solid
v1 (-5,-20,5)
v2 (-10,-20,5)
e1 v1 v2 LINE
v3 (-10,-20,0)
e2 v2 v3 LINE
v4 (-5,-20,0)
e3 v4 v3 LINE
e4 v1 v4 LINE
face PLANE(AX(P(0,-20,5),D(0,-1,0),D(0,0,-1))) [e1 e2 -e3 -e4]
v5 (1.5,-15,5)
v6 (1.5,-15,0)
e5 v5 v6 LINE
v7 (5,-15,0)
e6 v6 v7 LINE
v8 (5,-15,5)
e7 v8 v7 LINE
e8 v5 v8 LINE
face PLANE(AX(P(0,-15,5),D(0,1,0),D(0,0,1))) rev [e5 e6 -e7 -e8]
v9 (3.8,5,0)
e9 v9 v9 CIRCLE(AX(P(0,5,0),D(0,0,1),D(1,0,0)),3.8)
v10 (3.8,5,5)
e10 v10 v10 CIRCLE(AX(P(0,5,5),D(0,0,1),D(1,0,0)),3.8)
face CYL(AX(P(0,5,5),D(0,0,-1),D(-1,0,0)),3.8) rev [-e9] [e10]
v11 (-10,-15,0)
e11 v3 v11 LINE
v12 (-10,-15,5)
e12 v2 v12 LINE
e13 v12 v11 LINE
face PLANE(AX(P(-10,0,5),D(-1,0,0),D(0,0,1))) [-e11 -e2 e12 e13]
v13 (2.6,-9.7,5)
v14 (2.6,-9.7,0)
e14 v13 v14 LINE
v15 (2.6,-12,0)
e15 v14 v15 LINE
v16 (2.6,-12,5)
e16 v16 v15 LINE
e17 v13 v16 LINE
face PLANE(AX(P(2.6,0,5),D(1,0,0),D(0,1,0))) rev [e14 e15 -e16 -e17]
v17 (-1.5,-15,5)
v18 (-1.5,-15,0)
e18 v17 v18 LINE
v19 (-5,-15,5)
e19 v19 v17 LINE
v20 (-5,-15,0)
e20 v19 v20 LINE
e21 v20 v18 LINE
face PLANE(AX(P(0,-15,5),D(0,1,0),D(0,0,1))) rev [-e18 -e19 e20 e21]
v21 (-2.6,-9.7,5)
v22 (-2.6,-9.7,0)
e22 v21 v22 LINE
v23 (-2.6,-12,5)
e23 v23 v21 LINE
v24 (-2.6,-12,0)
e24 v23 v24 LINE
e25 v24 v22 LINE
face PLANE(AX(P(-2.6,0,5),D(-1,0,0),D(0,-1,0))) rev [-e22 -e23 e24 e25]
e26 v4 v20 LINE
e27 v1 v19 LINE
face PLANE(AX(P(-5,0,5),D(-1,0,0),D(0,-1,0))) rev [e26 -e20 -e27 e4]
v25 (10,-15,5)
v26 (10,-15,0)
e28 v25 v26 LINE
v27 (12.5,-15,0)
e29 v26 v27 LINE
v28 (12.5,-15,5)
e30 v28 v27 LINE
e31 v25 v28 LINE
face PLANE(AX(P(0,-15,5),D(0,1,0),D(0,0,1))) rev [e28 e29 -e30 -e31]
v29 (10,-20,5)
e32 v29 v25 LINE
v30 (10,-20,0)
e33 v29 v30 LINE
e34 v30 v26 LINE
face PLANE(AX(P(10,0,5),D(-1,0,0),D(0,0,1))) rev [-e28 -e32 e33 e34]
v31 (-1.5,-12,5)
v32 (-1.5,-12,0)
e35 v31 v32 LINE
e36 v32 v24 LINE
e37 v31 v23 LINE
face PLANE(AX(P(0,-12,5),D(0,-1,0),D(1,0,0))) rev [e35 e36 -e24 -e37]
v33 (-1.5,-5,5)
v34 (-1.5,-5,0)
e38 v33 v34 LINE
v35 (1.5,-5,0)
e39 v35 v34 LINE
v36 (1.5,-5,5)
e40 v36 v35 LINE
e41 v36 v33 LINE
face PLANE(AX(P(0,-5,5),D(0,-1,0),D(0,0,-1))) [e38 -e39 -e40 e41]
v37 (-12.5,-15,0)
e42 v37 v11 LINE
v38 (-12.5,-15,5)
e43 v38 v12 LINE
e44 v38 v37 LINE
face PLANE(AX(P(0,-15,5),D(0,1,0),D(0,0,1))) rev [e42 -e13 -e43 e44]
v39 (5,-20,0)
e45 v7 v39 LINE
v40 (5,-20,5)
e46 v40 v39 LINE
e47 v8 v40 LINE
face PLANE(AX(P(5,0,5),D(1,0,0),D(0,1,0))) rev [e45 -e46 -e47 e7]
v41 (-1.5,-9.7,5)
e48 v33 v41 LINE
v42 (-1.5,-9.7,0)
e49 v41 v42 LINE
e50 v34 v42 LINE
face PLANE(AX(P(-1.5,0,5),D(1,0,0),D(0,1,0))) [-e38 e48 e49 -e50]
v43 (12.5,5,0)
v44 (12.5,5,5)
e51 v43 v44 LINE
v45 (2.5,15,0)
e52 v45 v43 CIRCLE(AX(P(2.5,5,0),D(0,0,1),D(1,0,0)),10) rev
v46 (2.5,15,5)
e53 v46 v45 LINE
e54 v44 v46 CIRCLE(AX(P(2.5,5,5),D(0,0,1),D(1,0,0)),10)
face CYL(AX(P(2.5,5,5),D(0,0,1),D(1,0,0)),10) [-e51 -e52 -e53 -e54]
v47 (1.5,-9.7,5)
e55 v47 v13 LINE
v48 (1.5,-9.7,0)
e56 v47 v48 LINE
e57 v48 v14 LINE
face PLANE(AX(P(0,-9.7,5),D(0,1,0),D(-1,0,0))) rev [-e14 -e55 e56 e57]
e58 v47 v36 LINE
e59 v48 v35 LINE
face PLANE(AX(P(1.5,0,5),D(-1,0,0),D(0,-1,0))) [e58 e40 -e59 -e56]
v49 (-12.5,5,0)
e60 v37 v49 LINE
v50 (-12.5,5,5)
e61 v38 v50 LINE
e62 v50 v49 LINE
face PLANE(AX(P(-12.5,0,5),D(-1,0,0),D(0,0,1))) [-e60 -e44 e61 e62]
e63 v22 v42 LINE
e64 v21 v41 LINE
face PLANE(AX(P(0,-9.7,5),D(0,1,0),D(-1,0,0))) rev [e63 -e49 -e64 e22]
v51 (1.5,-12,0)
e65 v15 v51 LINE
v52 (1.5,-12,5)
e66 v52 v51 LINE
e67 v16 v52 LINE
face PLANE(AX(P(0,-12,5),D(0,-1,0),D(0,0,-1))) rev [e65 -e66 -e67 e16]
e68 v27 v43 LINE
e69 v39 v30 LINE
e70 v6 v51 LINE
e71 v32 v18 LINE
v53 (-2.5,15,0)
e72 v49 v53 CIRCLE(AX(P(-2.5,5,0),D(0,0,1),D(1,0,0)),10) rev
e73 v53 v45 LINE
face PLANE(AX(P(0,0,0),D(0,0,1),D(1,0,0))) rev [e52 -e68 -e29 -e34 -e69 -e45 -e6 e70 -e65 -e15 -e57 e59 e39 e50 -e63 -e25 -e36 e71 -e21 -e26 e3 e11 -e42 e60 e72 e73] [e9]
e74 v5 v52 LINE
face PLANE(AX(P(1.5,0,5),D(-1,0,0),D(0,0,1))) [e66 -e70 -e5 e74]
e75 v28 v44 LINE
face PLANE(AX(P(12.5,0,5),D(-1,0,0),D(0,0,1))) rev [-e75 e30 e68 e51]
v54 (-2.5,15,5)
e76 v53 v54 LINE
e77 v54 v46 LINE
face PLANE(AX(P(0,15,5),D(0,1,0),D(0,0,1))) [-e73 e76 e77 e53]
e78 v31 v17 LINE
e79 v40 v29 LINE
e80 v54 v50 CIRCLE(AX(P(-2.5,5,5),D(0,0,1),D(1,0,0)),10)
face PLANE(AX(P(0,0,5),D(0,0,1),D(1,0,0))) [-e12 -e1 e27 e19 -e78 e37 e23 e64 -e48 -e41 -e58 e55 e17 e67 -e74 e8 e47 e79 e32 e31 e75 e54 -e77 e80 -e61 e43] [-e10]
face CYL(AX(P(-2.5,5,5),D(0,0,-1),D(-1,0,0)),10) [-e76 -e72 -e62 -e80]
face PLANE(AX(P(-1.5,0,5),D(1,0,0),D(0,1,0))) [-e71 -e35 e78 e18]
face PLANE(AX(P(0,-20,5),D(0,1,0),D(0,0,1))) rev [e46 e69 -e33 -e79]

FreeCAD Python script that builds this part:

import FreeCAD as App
import Part
import Sketcher


def edges_at(feature, points):
    """Names of the edges that pass closest to the given points."""
    edges = feature.Shape.Edges
    near = lambda p: min(range(len(edges)), key=lambda i: edges[i].distToShape(Part.Vertex(*p))[0])
    return sorted({f"Edge{near(p) + 1}" for p in points})

doc = App.newDocument("Part")
body = doc.addObject("PartDesign::Body", "Body")

# Sketch on XY plane
sketch1 = body.newObject("Sketcher::SketchObject", "Sketch")
sketch1.AttachmentSupport = (doc.getObject("XY_Plane"), [""])
sketch1.MapMode = "FlatFace"
sketch1.addGeometry([
    Part.LineSegment(App.Vector(-12.5, 15, 0), App.Vector(-12.5, -15, 0)),  # 0
    Part.LineSegment(App.Vector(-12.5, -15, 0), App.Vector(-10, -15, 0)),  # 1
    Part.LineSegment(App.Vector(-10, -15, 0), App.Vector(-10, -20, 0)),  # 2
    Part.LineSegment(App.Vector(-10, -20, 0), App.Vector(-5, -20, 0)),  # 3
    Part.LineSegment(App.Vector(-5, -20, 0), App.Vector(-5, -15, 0)),  # 4
    Part.LineSegment(App.Vector(-5, -15, 0), App.Vector(-1.5, -15, 0)),  # 5
    Part.LineSegment(App.Vector(-1.5, -15, 0), App.Vector(-1.5, -12, 0)),  # 6
    Part.LineSegment(App.Vector(-1.5, -12, 0), App.Vector(-2.6, -12, 0)),  # 7
    Part.LineSegment(App.Vector(-2.6, -12, 0), App.Vector(-2.6, -9.7, 0)),  # 8
    Part.LineSegment(App.Vector(-2.6, -9.7, 0), App.Vector(-1.5, -9.7, 0)),  # 9
    Part.LineSegment(App.Vector(-1.5, -9.7, 0), App.Vector(-1.5, -5, 0)),  # 10
    Part.LineSegment(App.Vector(-1.5, -5, 0), App.Vector(1.5, -5, 0)),  # 11
    Part.LineSegment(App.Vector(1.5, -5, 0), App.Vector(1.5, -9.7, 0)),  # 12
    Part.LineSegment(App.Vector(1.5, -9.7, 0), App.Vector(2.6, -9.7, 0)),  # 13
    Part.LineSegment(App.Vector(2.6, -9.7, 0), App.Vector(2.6, -12, 0)),  # 14
    Part.LineSegment(App.Vector(2.6, -12, 0), App.Vector(1.5, -12, 0)),  # 15
    Part.LineSegment(App.Vector(1.5, -12, 0), App.Vector(1.5, -15, 0)),  # 16
    Part.LineSegment(App.Vector(1.5, -15, 0), App.Vector(5, -15, 0)),  # 17
    Part.LineSegment(App.Vector(5, -15, 0), App.Vector(5, -20, 0)),  # 18
    Part.LineSegment(App.Vector(5, -20, 0), App.Vector(10, -20, 0)),  # 19
    Part.LineSegment(App.Vector(10, -20, 0), App.Vector(10, -15, 0)),  # 20
    Part.LineSegment(App.Vector(10, -15, 0), App.Vector(12.5, -15, 0)),  # 21
    Part.LineSegment(App.Vector(12.5, -15, 0), App.Vector(12.5, 15, 0)),  # 22
    Part.LineSegment(App.Vector(12.5, 15, 0), App.Vector(-12.5, 15, 0)),  # 23
    Part.Circle(App.Vector(0, 5, 0), App.Vector(0, 0, 1), 3.8),  # 24
], False)
sketch1.addConstraint([
    Sketcher.Constraint("Coincident", 0, 2, 1, 1),
    Sketcher.Constraint("Coincident", 1, 2, 2, 1),
    Sketcher.Constraint("Coincident", 2, 2, 3, 1),
    Sketcher.Constraint("Coincident", 3, 2, 4, 1),
    Sketcher.Constraint("Coincident", 4, 2, 5, 1),
    Sketcher.Constraint("Coincident", 5, 2, 6, 1),
    Sketcher.Constraint("Coincident", 6, 2, 7, 1),
    Sketcher.Constraint("Coincident", 7, 2, 8, 1),
    Sketcher.Constraint("Coincident", 8, 2, 9, 1),
    Sketcher.Constraint("Coincident", 9, 2, 10, 1),
    Sketcher.Constraint("Coincident", 10, 2, 11, 1),
    Sketcher.Constraint("Coincident", 11, 2, 12, 1),
    Sketcher.Constraint("Coincident", 12, 2, 13, 1),
    Sketcher.Constraint("Coincident", 13, 2, 14, 1),
    Sketcher.Constraint("Coincident", 14, 2, 15, 1),
    Sketcher.Constraint("Coincident", 15, 2, 16, 1),
    Sketcher.Constraint("Coincident", 16, 2, 17, 1),
    Sketcher.Constraint("Coincident", 17, 2, 18, 1),
    Sketcher.Constraint("Coincident", 18, 2, 19, 1),
    Sketcher.Constraint("Coincident", 19, 2, 20, 1),
    Sketcher.Constraint("Coincident", 20, 2, 21, 1),
    Sketcher.Constraint("Coincident", 21, 2, 22, 1),
    Sketcher.Constraint("Coincident", 22, 2, 23, 1),
    Sketcher.Constraint("Coincident", 23, 2, 0, 1),
    Sketcher.Constraint("Vertical", 0),
    Sketcher.Constraint("Horizontal", 1),
    Sketcher.Constraint("Vertical", 2),
    Sketcher.Constraint("Horizontal", 3),
    Sketcher.Constraint("Vertical", 4),
    Sketcher.Constraint("Horizontal", 5),
    Sketcher.Constraint("Vertical", 6),
    Sketcher.Constraint("Horizontal", 7),
    Sketcher.Constraint("Vertical", 8),
    Sketcher.Constraint("Horizontal", 9),
    Sketcher.Constraint("Vertical", 10),
    Sketcher.Constraint("Horizontal", 11),
    Sketcher.Constraint("Vertical", 12),
    Sketcher.Constraint("Horizontal", 13),
    Sketcher.Constraint("Vertical", 14),
    Sketcher.Constraint("Horizontal", 15),
    Sketcher.Constraint("Vertical", 16),
    Sketcher.Constraint("Horizontal", 17),
    Sketcher.Constraint("Vertical", 18),
    Sketcher.Constraint("Horizontal", 19),
    Sketcher.Constraint("Vertical", 20),
    Sketcher.Constraint("Horizontal", 21),
    Sketcher.Constraint("Vertical", 22),
    Sketcher.Constraint("Horizontal", 23),
    Sketcher.Constraint("Symmetric", 0, 2, 22, 2, -1, 1),
    Sketcher.Constraint("Symmetric", 9, 2, 12, 2, -2),
    Sketcher.Constraint("Symmetric", 7, 2, 14, 2, -2),
    Sketcher.Constraint("Symmetric", 5, 2, 16, 2, -2),
    Sketcher.Constraint("Symmetric", 3, 2, 18, 2, -2),
    Sketcher.Constraint("Symmetric", 1, 2, 20, 2, -2),
    Sketcher.Constraint("PointOnObject", 24, 3, -2),
    Sketcher.Constraint("Horizontal", 1, 2, 4, 2),
    Sketcher.Constraint("Vertical", 6, 2, 9, 2),
    Sketcher.Constraint("Equal", 19, 2),
    Sketcher.Constraint("Equal", 11, 6),
    Sketcher.Constraint("Diameter", 24, 7.6),
    Sketcher.Constraint("DistanceX", 3, 1, 3, 2, 5.0),
    Sketcher.Constraint("DistanceX", 11, 1, 11, 2, 3.0),
    Sketcher.Constraint("DistanceX", 23, 2, 23, 1, 25.0),
    Sketcher.Constraint("DistanceY", 0, 2, 0, 1, 30.0),
    Sketcher.Constraint("DistanceX", 1, 1, 1, 2, 2.5),
    Sketcher.Constraint("DistanceX", 7, 2, 7, 1, 1.1),
    Sketcher.Constraint("DistanceY", 8, 1, 8, 2, 2.3),
    Sketcher.Constraint("DistanceY", 10, 1, 10, 2, 4.7),
    Sketcher.Constraint("DistanceY", -1, 1, 24, 3, 5.0),
])
pad1 = body.newObject("PartDesign::Pad", "Pad")
pad1.Profile = sketch1
pad1.Length = 5
doc.recompute()

fillet = body.newObject("PartDesign::Fillet", "Fillet")
fillet.Base = (pad1, edges_at(pad1, [(-12.5, 15, 2.5), (12.5, 15, 2.5)]))
fillet.Radius = 10

doc.recompute()
